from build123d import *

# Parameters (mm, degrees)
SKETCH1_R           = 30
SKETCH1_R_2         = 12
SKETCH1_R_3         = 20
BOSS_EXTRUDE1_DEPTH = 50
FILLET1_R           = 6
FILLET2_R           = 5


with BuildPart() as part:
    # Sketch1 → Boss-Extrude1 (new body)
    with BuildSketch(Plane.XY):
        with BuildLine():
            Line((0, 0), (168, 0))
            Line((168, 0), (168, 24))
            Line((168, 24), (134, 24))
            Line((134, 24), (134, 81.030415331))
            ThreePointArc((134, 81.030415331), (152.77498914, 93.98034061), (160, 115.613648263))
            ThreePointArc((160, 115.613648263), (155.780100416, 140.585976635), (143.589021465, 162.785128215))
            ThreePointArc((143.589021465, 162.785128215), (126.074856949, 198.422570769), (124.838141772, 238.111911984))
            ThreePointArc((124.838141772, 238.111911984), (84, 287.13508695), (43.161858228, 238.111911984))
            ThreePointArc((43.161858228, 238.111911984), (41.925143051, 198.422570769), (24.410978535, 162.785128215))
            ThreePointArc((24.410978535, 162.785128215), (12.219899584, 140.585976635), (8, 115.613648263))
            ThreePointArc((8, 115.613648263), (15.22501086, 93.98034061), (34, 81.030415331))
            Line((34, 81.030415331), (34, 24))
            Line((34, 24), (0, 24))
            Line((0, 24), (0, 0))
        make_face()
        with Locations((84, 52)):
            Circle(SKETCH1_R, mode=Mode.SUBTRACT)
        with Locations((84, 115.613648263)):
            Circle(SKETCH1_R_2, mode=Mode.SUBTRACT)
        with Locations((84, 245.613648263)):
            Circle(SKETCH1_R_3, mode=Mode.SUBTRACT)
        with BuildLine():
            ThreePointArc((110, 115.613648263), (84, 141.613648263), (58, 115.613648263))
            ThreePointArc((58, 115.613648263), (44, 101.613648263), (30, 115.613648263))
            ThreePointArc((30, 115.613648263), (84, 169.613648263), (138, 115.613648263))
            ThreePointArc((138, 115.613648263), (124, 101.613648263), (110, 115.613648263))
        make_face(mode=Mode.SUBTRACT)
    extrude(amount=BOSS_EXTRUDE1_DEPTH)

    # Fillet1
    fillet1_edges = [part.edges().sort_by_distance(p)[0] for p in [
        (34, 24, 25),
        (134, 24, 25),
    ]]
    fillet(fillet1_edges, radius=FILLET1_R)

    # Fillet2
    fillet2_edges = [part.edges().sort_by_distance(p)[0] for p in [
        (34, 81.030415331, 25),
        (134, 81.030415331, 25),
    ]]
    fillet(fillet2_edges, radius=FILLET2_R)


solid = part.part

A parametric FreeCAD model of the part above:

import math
import FreeCAD as App
import Part
import Sketcher
Q = App.Units.Quantity


def edges_at(feature, points):
    """Names of the edges that pass closest to the given points."""
    edges = feature.Shape.Edges
    near = lambda p: min(range(len(edges)), key=lambda i: edges[i].distToShape(Part.Vertex(*p))[0])
    return sorted({f"Edge{near(p) + 1}" for p in points})

doc = App.newDocument("Part")
body = doc.addObject("PartDesign::Body", "Body")

# Sketch on XY plane
sketch1 = body.newObject("Sketcher::SketchObject", "Sketch")
sketch1.AttachmentSupport = (doc.getObject("XY_Plane"), [""])
sketch1.MapMode = "FlatFace"
sketch1.addGeometry([
    Part.LineSegment(App.Vector(0, 0, 0), App.Vector(168, 0, 0)),  # 0
    Part.LineSegment(App.Vector(168, 0, 0), App.Vector(168, 24, 0)),  # 1
    Part.LineSegment(App.Vector(168, 24, 0), App.Vector(134, 24, 0)),  # 2
    Part.LineSegment(App.Vector(134, 24, 0), App.Vector(134, 81, 0)),  # 3
    Part.ArcOfCircle(Part.Circle(App.Vector(124, 116, 0), App.Vector(0, 0, 1), 36), math.radians(-74), math.radians(0)),  # 4
    Part.ArcOfCircle(Part.Circle(App.Vector(84, 116, 0), App.Vector(0, 0, 1), 76), math.radians(0), math.radians(38)),  # 5
    Part.ArcOfCircle(Part.Circle(App.Vector(217, 221, 0), App.Vector(0, 0, 1), 94), math.radians(170), math.radians(218)),  # 6
    Part.ArcOfCircle(Part.Circle(App.Vector(84, 246, 0), App.Vector(0, 0, 1), 42), math.radians(-10), math.radians(190)),  # 7
    Part.ArcOfCircle(Part.Circle(App.Vector(-49, 221, 0), App.Vector(0, 0, 1), 94), math.radians(-38), math.radians(10)),  # 8
    Part.ArcOfCircle(Part.Circle(App.Vector(84, 116, 0), App.Vector(0, 0, 1), 76), math.radians(142), math.radians(180)),  # 9
    Part.ArcOfCircle(Part.Circle(App.Vector(44, 116, 0), App.Vector(0, 0, 1), 36), math.radians(180), math.radians(254)),  # 10
    Part.LineSegment(App.Vector(34, 81, 0), App.Vector(34, 24, 0)),  # 11
    Part.LineSegment(App.Vector(34, 24, 0), App.Vector(0, 24, 0)),  # 12
    Part.LineSegment(App.Vector(0, 24, 0), App.Vector(0, 0, 0)),  # 13
    Part.Circle(App.Vector(84, 52, 0), App.Vector(0, 0, 1), 30),  # 14
    Part.Circle(App.Vector(84, 116, 0), App.Vector(0, 0, 1), 12),  # 15
    Part.ArcOfCircle(Part.Circle(App.Vector(124, 116, 0), App.Vector(0, 0, 1), 14), math.radians(180), math.radians(360)),  # 16
    Part.ArcOfCircle(Part.Circle(App.Vector(84, 116, 0), App.Vector(0, 0, 1), 26), math.radians(0), math.radians(180)),  # 17
    Part.ArcOfCircle(Part.Circle(App.Vector(44, 116, 0), App.Vector(0, 0, 1), 14), math.radians(180), math.radians(360)),  # 18
    Part.ArcOfCircle(Part.Circle(App.Vector(84, 116, 0), App.Vector(0, 0, 1), 54), math.radians(0), math.radians(180)),  # 19
    Part.Circle(App.Vector(84, 246, 0), App.Vector(0, 0, 1), 20),  # 20
], False)
sketch1.addConstraint([
    Sketcher.Constraint("Coincident", 0, 2, 1, 1),
    Sketcher.Constraint("Coincident", 1, 2, 2, 1),
    Sketcher.Constraint("Coincident", 2, 2, 3, 1),
    Sketcher.Constraint("Coincident", 3, 2, 4, 1),
    Sketcher.Constraint("Tangent", 4, 2, 5, 1),
    Sketcher.Constraint("Tangent", 5, 2, 6, 2),
    Sketcher.Constraint("Tangent", 6, 1, 7, 1),
    Sketcher.Constraint("Tangent", 7, 2, 8, 2),
    Sketcher.Constraint("Tangent", 8, 1, 9, 1),
    Sketcher.Constraint("Tangent", 9, 2, 10, 1),
    Sketcher.Constraint("Coincident", 10, 2, 11, 1),
    Sketcher.Constraint("Coincident", 11, 2, 12, 1),
    Sketcher.Constraint("Coincident", 12, 2, 13, 1),
    Sketcher.Constraint("Coincident", 13, 2, 0, 1),
    Sketcher.Constraint("Tangent", 16, 1, 17, 1),
    Sketcher.Constraint("Tangent", 17, 2, 18, 2),
    Sketcher.Constraint("Tangent", 18, 1, 19, 2),
    Sketcher.Constraint("Tangent", 19, 1, 16, 2),
    Sketcher.Constraint("Horizontal", 0),
    Sketcher.Constraint("Vertical", 1),
    Sketcher.Constraint("Horizontal", 2),
    Sketcher.Constraint("Vertical", 3),
    Sketcher.Constraint("Vertical", 11),
    Sketcher.Constraint("Horizontal", 12),
    Sketcher.Constraint("Vertical", 13),
    Sketcher.Constraint("Coincident", 13, 2, -1, 1),
    Sketcher.Constraint("Coincident", 9, 3, 5, 3),
    Sketcher.Constraint("Coincident", 15, 3, 5, 3),
    Sketcher.Constraint("Coincident", 16, 3, 4, 3),
    Sketcher.Constraint("Coincident", 17, 3, 5, 3),
    Sketcher.Constraint("Coincident", 18, 3, 10, 3),
    Sketcher.Constraint("Coincident", 19, 3, 5, 3),
    Sketcher.Constraint("Coincident", 20, 3, 7, 3),
    Sketcher.Constraint("Equal", 6, 8),
    Sketcher.Constraint("Equal", 5, 9),
    Sketcher.Constraint("Horizontal", 4, 3, 5, 3),
    Sketcher.Constraint("Horizontal", 6, 3, 8, 3),
    Sketcher.Constraint("Horizontal", 9, 3, 10, 3),
    Sketcher.Constraint("Horizontal", 3, 2, 10, 2),
    Sketcher.Constraint("Horizontal", 2, 2, 11, 2),
    Sketcher.Constraint("Vertical", 9, 3, 14, 3),
    Sketcher.Constraint("Equal", 2, 12),
    Sketcher.Constraint("Diameter", 14, Q("60 mm")),
    Sketcher.Constraint("Diameter", 15, Q("24 mm")),
    Sketcher.Constraint("Diameter", 20, Q("40 mm")),
    Sketcher.Constraint("Radius", 4, Q("36 mm")),
    Sketcher.Constraint("Radius", 5, Q("76 mm")),
    Sketcher.Constraint("Radius", 6, Q("94 mm")),
    Sketcher.Constraint("Radius", 16, Q("14 mm")),
    Sketcher.Constraint("DistanceX", 0, 1, 0, 2, Q("168 mm")),
    Sketcher.Constraint("DistanceX", 2, 2, 2, 1, Q("34 mm")),
    Sketcher.Constraint("DistanceY", 1, 1, 1, 2, Q("24 mm")),
    Sketcher.Constraint("DistanceY", -1, 1, 14, 3, Q("52 mm")),
    Sketcher.Constraint("DistanceY", 5, 3, 7, 3, Q("130 mm")),
    Sketcher.Constraint("Radius", 7, Q("41.521439 mm")),
    Sketcher.Constraint("DistanceY", -1, 1, 6, 3, Q("221.128801 mm")),
])
pad1 = body.newObject("PartDesign::Pad", "Pad")
pad1.Profile = sketch1
pad1.Length = 50
doc.recompute()

fillet = body.newObject("PartDesign::Fillet", "Fillet")
fillet.Base = (pad1, edges_at(pad1, [(34, 24, 25), (134, 24, 25)]))
fillet.Radius = 6
doc.recompute()

fillet2 = body.newObject("PartDesign::Fillet", "Fillet001")
fillet2.Base = (fillet, edges_at(fillet, [(34, 81.03, 25), (134, 81.03, 25)]))
fillet2.Radius = 5

doc.recompute()
